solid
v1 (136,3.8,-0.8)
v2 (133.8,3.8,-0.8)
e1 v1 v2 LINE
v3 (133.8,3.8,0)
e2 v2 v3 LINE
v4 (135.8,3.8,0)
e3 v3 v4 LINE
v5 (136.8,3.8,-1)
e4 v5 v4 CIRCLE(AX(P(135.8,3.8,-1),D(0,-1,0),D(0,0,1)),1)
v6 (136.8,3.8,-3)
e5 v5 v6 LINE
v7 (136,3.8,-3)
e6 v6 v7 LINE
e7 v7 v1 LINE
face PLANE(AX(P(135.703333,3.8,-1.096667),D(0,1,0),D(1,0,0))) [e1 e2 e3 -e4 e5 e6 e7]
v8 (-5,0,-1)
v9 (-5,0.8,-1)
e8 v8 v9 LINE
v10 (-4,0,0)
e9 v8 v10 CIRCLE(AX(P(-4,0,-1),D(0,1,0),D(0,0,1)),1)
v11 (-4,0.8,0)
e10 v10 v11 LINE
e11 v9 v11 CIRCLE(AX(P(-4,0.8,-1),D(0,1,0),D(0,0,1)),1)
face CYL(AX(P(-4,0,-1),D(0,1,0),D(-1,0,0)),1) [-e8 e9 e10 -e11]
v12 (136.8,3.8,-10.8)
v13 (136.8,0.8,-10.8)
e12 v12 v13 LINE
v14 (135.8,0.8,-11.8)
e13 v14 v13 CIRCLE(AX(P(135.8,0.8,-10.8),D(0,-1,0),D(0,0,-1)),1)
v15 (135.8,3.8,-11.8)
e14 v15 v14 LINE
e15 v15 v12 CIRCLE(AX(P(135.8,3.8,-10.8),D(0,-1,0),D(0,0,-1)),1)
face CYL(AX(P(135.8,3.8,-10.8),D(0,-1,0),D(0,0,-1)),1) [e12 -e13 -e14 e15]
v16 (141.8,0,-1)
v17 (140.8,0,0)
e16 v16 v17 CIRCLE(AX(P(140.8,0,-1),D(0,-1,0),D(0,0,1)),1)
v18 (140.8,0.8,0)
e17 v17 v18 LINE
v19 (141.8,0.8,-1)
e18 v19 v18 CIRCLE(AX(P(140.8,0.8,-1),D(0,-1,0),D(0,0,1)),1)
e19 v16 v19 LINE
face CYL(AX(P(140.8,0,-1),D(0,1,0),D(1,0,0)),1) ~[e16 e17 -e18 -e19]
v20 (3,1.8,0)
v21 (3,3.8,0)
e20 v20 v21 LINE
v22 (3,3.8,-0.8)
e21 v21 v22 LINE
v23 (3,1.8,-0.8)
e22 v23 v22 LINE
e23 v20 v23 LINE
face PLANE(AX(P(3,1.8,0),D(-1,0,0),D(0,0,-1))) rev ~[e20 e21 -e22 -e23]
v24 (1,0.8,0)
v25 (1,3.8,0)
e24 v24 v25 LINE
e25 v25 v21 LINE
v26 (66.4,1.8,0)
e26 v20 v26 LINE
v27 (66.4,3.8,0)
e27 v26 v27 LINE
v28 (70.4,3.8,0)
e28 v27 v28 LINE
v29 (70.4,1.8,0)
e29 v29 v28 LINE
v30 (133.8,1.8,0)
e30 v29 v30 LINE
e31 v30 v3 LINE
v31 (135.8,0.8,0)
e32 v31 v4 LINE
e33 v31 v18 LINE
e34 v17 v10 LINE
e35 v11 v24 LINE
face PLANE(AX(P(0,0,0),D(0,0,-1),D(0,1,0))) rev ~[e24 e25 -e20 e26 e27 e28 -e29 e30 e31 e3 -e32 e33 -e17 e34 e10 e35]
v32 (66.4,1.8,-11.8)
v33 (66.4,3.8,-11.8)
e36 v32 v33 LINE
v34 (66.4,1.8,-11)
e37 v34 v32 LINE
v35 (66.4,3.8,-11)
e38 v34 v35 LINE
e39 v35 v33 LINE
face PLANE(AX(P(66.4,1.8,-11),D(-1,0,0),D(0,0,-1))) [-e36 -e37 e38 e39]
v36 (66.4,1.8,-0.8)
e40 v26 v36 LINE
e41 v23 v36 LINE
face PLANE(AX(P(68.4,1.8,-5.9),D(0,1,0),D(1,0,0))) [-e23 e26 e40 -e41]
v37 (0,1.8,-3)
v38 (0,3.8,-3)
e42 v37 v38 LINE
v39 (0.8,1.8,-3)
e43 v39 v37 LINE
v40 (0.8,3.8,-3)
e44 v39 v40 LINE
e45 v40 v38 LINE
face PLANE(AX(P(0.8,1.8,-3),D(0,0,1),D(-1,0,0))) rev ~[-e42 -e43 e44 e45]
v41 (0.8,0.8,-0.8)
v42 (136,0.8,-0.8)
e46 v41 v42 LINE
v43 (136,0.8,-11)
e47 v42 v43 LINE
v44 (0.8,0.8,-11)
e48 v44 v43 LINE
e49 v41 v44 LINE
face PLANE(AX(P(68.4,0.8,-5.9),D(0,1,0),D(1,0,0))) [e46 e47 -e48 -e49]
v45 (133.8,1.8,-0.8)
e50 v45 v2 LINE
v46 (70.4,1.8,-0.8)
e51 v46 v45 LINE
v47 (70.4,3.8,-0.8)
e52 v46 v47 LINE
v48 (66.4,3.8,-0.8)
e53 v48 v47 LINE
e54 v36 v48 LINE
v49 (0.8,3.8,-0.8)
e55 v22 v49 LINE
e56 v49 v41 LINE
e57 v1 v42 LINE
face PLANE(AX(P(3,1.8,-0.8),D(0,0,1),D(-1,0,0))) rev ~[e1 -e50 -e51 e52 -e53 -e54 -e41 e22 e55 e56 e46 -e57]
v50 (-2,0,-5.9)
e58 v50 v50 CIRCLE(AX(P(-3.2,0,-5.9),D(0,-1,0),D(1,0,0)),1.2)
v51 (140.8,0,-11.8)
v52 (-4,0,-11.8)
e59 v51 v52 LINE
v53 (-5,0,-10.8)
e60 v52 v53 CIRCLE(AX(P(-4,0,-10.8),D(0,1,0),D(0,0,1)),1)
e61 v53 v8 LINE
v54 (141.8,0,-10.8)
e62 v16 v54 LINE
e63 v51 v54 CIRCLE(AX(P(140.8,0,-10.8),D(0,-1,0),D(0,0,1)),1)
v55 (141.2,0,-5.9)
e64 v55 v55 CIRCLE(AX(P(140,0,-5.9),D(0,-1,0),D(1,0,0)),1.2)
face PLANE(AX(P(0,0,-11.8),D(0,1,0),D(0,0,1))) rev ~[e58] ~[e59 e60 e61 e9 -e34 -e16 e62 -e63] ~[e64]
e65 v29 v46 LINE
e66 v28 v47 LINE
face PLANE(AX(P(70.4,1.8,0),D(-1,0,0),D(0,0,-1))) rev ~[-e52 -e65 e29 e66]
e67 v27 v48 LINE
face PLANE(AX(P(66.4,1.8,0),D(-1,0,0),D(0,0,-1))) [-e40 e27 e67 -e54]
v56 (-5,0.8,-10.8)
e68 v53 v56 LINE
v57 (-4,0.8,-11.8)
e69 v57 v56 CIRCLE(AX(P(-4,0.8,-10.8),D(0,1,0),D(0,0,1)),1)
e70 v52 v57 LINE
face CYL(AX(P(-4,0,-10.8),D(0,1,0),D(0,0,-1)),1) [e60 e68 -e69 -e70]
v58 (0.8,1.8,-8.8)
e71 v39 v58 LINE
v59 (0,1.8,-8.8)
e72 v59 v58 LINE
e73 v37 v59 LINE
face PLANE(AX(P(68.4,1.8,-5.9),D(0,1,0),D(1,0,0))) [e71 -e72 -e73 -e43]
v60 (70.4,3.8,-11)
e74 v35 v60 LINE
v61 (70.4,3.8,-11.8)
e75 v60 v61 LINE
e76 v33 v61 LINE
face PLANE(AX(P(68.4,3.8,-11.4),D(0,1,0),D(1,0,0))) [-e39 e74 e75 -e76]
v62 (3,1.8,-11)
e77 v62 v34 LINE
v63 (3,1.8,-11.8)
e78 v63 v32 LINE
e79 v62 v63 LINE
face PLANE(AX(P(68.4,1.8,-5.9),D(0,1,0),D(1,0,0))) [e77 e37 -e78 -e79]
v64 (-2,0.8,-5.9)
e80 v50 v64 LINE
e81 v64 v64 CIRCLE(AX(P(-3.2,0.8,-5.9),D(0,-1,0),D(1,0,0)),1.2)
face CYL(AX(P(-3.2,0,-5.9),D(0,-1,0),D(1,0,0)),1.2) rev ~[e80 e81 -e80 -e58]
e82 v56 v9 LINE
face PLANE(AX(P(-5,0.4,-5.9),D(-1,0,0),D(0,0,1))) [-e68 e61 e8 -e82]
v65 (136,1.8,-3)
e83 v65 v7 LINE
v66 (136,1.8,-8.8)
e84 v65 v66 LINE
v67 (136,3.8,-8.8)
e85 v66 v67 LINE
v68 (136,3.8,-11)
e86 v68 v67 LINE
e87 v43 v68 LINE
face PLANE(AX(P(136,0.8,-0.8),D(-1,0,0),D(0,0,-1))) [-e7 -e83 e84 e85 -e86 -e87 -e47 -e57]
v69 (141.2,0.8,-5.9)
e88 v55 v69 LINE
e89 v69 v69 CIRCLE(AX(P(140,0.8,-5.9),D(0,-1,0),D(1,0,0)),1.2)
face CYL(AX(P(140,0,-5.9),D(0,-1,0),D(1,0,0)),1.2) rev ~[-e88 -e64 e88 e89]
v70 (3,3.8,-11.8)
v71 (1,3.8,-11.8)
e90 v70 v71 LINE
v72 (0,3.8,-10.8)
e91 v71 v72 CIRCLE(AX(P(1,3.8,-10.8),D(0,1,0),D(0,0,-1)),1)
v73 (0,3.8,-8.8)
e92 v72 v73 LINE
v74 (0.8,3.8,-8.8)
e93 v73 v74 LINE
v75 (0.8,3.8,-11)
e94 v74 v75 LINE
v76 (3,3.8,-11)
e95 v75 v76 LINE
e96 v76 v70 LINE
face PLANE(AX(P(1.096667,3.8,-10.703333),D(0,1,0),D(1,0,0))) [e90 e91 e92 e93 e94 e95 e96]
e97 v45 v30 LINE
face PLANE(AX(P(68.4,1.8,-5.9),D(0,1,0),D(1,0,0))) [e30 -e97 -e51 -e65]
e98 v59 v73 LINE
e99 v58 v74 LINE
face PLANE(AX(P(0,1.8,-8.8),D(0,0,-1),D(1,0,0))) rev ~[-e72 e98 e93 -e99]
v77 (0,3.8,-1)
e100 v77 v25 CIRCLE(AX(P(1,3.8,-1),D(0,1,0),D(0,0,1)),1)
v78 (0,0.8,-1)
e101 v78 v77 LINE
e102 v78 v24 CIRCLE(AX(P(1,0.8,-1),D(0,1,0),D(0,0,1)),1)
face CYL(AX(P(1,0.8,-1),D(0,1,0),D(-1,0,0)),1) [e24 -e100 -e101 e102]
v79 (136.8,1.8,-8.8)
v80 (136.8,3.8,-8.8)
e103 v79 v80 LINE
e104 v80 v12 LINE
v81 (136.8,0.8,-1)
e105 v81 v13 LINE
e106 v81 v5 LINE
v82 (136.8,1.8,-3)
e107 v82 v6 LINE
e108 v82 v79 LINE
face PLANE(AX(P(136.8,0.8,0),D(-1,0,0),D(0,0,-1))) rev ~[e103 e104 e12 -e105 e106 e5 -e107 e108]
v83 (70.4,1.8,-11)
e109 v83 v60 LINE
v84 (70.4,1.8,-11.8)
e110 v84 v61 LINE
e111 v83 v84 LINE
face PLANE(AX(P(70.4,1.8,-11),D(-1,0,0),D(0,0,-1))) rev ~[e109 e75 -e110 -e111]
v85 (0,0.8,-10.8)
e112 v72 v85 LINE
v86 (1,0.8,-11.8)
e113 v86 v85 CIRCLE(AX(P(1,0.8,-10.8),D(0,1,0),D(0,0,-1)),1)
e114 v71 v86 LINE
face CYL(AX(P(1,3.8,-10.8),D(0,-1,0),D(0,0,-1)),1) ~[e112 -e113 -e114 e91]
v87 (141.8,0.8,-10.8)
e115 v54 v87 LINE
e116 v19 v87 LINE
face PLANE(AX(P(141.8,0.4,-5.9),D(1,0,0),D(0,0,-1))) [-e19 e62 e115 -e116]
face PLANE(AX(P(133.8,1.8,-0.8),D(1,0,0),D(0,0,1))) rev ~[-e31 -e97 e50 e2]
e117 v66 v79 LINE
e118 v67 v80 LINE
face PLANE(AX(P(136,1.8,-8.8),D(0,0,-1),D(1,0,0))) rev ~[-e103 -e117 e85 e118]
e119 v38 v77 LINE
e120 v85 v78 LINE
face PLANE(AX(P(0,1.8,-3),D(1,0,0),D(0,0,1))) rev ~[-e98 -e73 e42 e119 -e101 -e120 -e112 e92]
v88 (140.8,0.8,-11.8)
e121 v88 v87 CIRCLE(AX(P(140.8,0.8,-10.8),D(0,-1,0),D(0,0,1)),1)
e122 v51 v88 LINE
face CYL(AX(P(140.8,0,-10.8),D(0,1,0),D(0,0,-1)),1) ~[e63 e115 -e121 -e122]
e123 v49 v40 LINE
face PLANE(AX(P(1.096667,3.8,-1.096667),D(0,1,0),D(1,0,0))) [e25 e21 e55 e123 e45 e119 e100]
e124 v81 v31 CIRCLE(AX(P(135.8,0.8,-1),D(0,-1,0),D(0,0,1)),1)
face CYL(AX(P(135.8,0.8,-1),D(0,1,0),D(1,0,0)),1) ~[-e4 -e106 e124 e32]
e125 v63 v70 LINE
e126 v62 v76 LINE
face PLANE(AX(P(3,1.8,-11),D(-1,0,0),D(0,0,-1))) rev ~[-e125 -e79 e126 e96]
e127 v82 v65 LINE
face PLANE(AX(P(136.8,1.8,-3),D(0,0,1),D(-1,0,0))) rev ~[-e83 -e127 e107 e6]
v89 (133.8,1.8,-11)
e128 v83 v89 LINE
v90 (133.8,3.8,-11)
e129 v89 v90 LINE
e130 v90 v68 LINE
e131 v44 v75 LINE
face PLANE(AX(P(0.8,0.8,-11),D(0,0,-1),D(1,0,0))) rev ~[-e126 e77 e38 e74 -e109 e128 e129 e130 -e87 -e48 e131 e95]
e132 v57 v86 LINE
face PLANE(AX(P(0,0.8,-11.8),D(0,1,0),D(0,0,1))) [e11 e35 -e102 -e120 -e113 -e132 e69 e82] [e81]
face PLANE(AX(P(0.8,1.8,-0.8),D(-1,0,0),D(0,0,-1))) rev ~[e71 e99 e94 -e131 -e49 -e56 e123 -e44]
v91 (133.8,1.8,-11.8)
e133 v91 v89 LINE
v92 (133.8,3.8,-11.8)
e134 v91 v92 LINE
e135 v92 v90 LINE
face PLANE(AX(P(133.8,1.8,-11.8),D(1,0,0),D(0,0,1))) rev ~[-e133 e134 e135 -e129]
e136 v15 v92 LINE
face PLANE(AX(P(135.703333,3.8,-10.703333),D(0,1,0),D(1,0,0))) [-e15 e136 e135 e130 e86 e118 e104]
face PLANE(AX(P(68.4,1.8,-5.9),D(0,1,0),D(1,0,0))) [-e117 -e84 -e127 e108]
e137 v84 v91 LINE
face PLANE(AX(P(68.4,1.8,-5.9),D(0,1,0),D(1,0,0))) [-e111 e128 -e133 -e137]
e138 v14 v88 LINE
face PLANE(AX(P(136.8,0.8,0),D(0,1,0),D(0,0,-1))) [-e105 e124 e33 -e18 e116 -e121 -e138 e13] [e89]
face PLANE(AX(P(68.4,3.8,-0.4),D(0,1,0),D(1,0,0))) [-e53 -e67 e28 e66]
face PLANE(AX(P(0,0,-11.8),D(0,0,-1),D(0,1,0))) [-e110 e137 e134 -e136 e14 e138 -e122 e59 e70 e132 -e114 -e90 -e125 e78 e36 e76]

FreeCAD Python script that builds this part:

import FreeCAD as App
import Part
import Sketcher


def edges_at(feature, points):
    """Names of the edges that pass closest to the given points."""
    edges = feature.Shape.Edges
    near = lambda p: min(range(len(edges)), key=lambda i: edges[i].distToShape(Part.Vertex(*p))[0])
    return sorted({f"Edge{near(p) + 1}" for p in points})


def add_polygon(sketch, points):
    """Adds a closed chain of lines whose ends are joined by coincident constraints."""
    first, n = sketch.GeometryCount, len(points)
    for a, b in zip(points, points[1:] + points[:1]):
        sketch.addGeometry(Part.LineSegment(App.Vector(*a, 0), App.Vector(*b, 0)), False)
    for i in range(n):
        sketch.addConstraint(Sketcher.Constraint("Coincident", first + i, 2, first + (i + 1) % n, 1))

doc = App.newDocument("Part")
body = doc.addObject("PartDesign::Body", "Body")

# Sketch on XZ plane
sketch1 = doc.addObject("Sketcher::SketchObject", "Sketch")
body.addObject(sketch1)
sketch1.AttachmentSupport = (doc.XZ_Plane, [""])
sketch1.MapMode = "FlatFace"
add_polygon(sketch1, [(0, -12), (0, 0), (137, 0), (137, -12)])  # lines 0-3
sketch1.addConstraint(Sketcher.Constraint("Vertical", 0))
sketch1.addConstraint(Sketcher.Constraint("Horizontal", 1))
sketch1.addConstraint(Sketcher.Constraint("Vertical", 2))
sketch1.addConstraint(Sketcher.Constraint("Horizontal", 3))
sketch1.addConstraint(Sketcher.Constraint("Coincident", 0, 2, -1, 1))
sketch1.addConstraint(Sketcher.Constraint("DistanceX", 1, 1, 1, 2, 136.8))
sketch1.addConstraint(Sketcher.Constraint("DistanceY", 0, 1, 0, 2, 11.8))
pad1 = doc.addObject("PartDesign::Pad", "Pad")
body.addObject(pad1)
pad1.Profile = sketch1
pad1.Length = 0.8
pad1.Reversed = True

# Sketch on XZ plane
sketch2 = doc.addObject("Sketcher::SketchObject", "Sketch001")
body.addObject(sketch2)
sketch2.AttachmentSupport = (doc.XZ_Plane, [""])
sketch2.MapMode = "FlatFace"
sketch2.AttachmentOffset = App.Placement(App.Vector(0, 0, -0.8), App.Rotation())
add_polygon(sketch2, [(0, -12), (0, 0), (137, 0), (137, -12)])  # lines 0-3
add_polygon(sketch2, [(136, -1), (1, -1), (1, -11), (136, -11)])  # lines 4-7
sketch2.addConstraint(Sketcher.Constraint("Vertical", 0))
sketch2.addConstraint(Sketcher.Constraint("Horizontal", 1))
sketch2.addConstraint(Sketcher.Constraint("Vertical", 2))
sketch2.addConstraint(Sketcher.Constraint("Horizontal", 3))
sketch2.addConstraint(Sketcher.Constraint("Horizontal", 4))
sketch2.addConstraint(Sketcher.Constraint("Vertical", 5))
sketch2.addConstraint(Sketcher.Constraint("Horizontal", 6))
sketch2.addConstraint(Sketcher.Constraint("Vertical", 7))
sketch2.addConstraint(Sketcher.Constraint("Coincident", 0, 2, -1, 1))
sketch2.addConstraint(Sketcher.Constraint("DistanceX", 1, 1, 1, 2, 136.8))
sketch2.addConstraint(Sketcher.Constraint("DistanceX", 4, 2, 4, 1, 135.2))
sketch2.addConstraint(Sketcher.Constraint("DistanceY", 0, 1, 0, 2, 11.8))
sketch2.addConstraint(Sketcher.Constraint("DistanceY", 5, 2, 5, 1, 10.2))
sketch2.addConstraint(Sketcher.Constraint("DistanceY", 5, 2, -1, 1, 11.0))
sketch2.addConstraint(Sketcher.Constraint("DistanceX", -1, 1, 6, 2, 136.0))
pad2 = doc.addObject("PartDesign::Pad", "Pad001")
body.addObject(pad2)
pad2.Profile = sketch2
pad2.Length = 1
pad2.Reversed = True

# Sketch on XZ plane
sketch3 = doc.addObject("Sketcher::SketchObject", "Sketch002")
body.addObject(sketch3)
sketch3.AttachmentSupport = (doc.XZ_Plane, [""])
sketch3.MapMode = "FlatFace"
sketch3.AttachmentOffset = App.Placement(App.Vector(0, 0, -1.8), App.Rotation())
add_polygon(sketch3, [(0.8, -3), (0, -3), (0, 0), (3, 0), (3, -0.8), (0.8, -0.8)])  # lines 0-5
add_polygon(sketch3, [(3, -11.8), (0, -11.8), (0, -8.8), (0.8, -8.8), (0.8, -11), (3, -11)])  # lines 6-11
add_polygon(sketch3, [(133.8, -11), (136, -11), (136, -8.8), (136.8, -8.8), (136.8, -11.8), (133.8, -11.8)])  # lines 12-17
add_polygon(sketch3, [(66.4, -11.8), (66.4, -11), (70.4, -11), (70.4, -11.8)])  # lines 18-21
add_polygon(sketch3, [(66.4, -0.8), (66.4, 0), (70.4, 0), (70.4, -0.8)])  # lines 22-25
add_polygon(sketch3, [(133.8, 0), (136.8, 0), (136.8, -3), (136, -3), (136, -0.8), (133.8, -0.8)])  # lines 26-31
sketch3.addConstraint(Sketcher.Constraint("Horizontal", 0))
sketch3.addConstraint(Sketcher.Constraint("Vertical", 1))
sketch3.addConstraint(Sketcher.Constraint("Horizontal", 2))
sketch3.addConstraint(Sketcher.Constraint("Vertical", 3))
sketch3.addConstraint(Sketcher.Constraint("Horizontal", 4))
sketch3.addConstraint(Sketcher.Constraint("Vertical", 5))
sketch3.addConstraint(Sketcher.Constraint("Horizontal", 6))
sketch3.addConstraint(Sketcher.Constraint("Vertical", 7))
sketch3.addConstraint(Sketcher.Constraint("Horizontal", 8))
sketch3.addConstraint(Sketcher.Constraint("Vertical", 9))
sketch3.addConstraint(Sketcher.Constraint("Horizontal", 10))
sketch3.addConstraint(Sketcher.Constraint("Vertical", 11))
sketch3.addConstraint(Sketcher.Constraint("Horizontal", 12))
sketch3.addConstraint(Sketcher.Constraint("Vertical", 13))
sketch3.addConstraint(Sketcher.Constraint("Horizontal", 14))
sketch3.addConstraint(Sketcher.Constraint("Vertical", 15))
sketch3.addConstraint(Sketcher.Constraint("Horizontal", 16))
sketch3.addConstraint(Sketcher.Constraint("Vertical", 17))
sketch3.addConstraint(Sketcher.Constraint("Vertical", 18))
sketch3.addConstraint(Sketcher.Constraint("Horizontal", 19))
sketch3.addConstraint(Sketcher.Constraint("Vertical", 20))
sketch3.addConstraint(Sketcher.Constraint("Horizontal", 21))
sketch3.addConstraint(Sketcher.Constraint("Vertical", 22))
sketch3.addConstraint(Sketcher.Constraint("Horizontal", 23))
sketch3.addConstraint(Sketcher.Constraint("Vertical", 24))
sketch3.addConstraint(Sketcher.Constraint("Horizontal", 25))
sketch3.addConstraint(Sketcher.Constraint("Horizontal", 26))
sketch3.addConstraint(Sketcher.Constraint("Vertical", 27))
sketch3.addConstraint(Sketcher.Constraint("Horizontal", 28))
sketch3.addConstraint(Sketcher.Constraint("Vertical", 29))
sketch3.addConstraint(Sketcher.Constraint("Horizontal", 30))
sketch3.addConstraint(Sketcher.Constraint("Vertical", 31))
sketch3.addConstraint(Sketcher.Constraint("Coincident", 1, 2, -1, 1))
sketch3.addConstraint(Sketcher.Constraint("PointOnObject", 6, 2, -2))
sketch3.addConstraint(Sketcher.Constraint("PointOnObject", 22, 2, -1))
sketch3.addConstraint(Sketcher.Constraint("PointOnObject", 26, 2, -1))
sketch3.addConstraint(Sketcher.Constraint("Horizontal", 10, 2, 12, 2))
sketch3.addConstraint(Sketcher.Constraint("Horizontal", 8, 2, 13, 2))
sketch3.addConstraint(Sketcher.Constraint("Horizontal", 11, 2, 15, 2))
sketch3.addConstraint(Sketcher.Constraint("Horizontal", 17, 2, 18, 2))
sketch3.addConstraint(Sketcher.Constraint("Horizontal", 16, 2, 20, 2))
sketch3.addConstraint(Sketcher.Constraint("Horizontal", 4, 2, 24, 2))
sketch3.addConstraint(Sketcher.Constraint("Horizontal", 5, 2, 27, 2))
sketch3.addConstraint(Sketcher.Constraint("Horizontal", 25, 2, 29, 2))
sketch3.addConstraint(Sketcher.Constraint("Vertical", 5, 2, 8, 2))
sketch3.addConstraint(Sketcher.Constraint("Vertical", 3, 2, 10, 2))
sketch3.addConstraint(Sketcher.Constraint("Vertical", 21, 2, 22, 2))
sketch3.addConstraint(Sketcher.Constraint("Vertical", 20, 2, 23, 2))
sketch3.addConstraint(Sketcher.Constraint("Vertical", 15, 2, 26, 2))
sketch3.addConstraint(Sketcher.Constraint("Vertical", 13, 2, 28, 2))
sketch3.addConstraint(Sketcher.Constraint("Vertical", 17, 2, 30, 2))
sketch3.addConstraint(Sketcher.Constraint("Equal", 10, 12))
sketch3.addConstraint(Sketcher.Constraint("Equal", 8, 14))
sketch3.addConstraint(Sketcher.Constraint("Equal", 26, 1))
sketch3.addConstraint(Sketcher.Constraint("Equal", 28, 3))
sketch3.addConstraint(Sketcher.Constraint("Equal", 1, 7))
sketch3.addConstraint(Sketcher.Constraint("Equal", 5, 9))
sketch3.addConstraint(Sketcher.Constraint("DistanceX", 2, 1, 2, 2, 3.0))
sketch3.addConstraint(Sketcher.Constraint("DistanceX", 19, 1, 19, 2, 4.0))
sketch3.addConstraint(Sketcher.Constraint("DistanceX", 0, 2, 0, 1, 0.8))
sketch3.addConstraint(Sketcher.Constraint("DistanceY", 9, 2, -1, 1, 11.0))
sketch3.addConstraint(Sketcher.Constraint("DistanceX", -1, 1, 12, 2, 136.0))
sketch3.addConstraint(Sketcher.Constraint("DistanceX", -1, 1, 18, 2, 66.4))
pad3 = doc.addObject("PartDesign::Pad", "Pad002")
body.addObject(pad3)
pad3.Profile = sketch3
pad3.Length = 2
pad3.Reversed = True

# Sketch on YZ plane
sketch4 = doc.addObject("Sketcher::SketchObject", "Sketch003")
body.addObject(sketch4)
sketch4.AttachmentSupport = (doc.YZ_Plane, [""])
sketch4.MapMode = "FlatFace"
sketch4.AttachmentOffset = App.Placement(App.Vector(0, 0, 136.8), App.Rotation())
add_polygon(sketch4, [(0.8, 0), (0, 0), (0, -11.8), (0.8, -11.8)])  # lines 0-3
sketch4.addConstraint(Sketcher.Constraint("Horizontal", 0))
sketch4.addConstraint(Sketcher.Constraint("Vertical", 1))
sketch4.addConstraint(Sketcher.Constraint("Horizontal", 2))
sketch4.addConstraint(Sketcher.Constraint("Vertical", 3))
sketch4.addConstraint(Sketcher.Constraint("Coincident", 0, 2, -1, 1))
sketch4.addConstraint(Sketcher.Constraint("DistanceX", 0, 2, 0, 1, 0.8))
sketch4.addConstraint(Sketcher.Constraint("DistanceY", 1, 2, 1, 1, 11.8))
pad4 = doc.addObject("PartDesign::Pad", "Pad003")
body.addObject(pad4)
pad4.Profile = sketch4
pad4.Length = 5

# Sketch on YZ plane
sketch5 = doc.addObject("Sketcher::SketchObject", "Sketch004")
body.addObject(sketch5)
sketch5.AttachmentSupport = (doc.YZ_Plane, [""])
sketch5.MapMode = "FlatFace"
add_polygon(sketch5, [(0.8, -11.8), (0, -11.8), (0, 0), (0.8, 0)])  # lines 0-3
sketch5.addConstraint(Sketcher.Constraint("Horizontal", 0))
sketch5.addConstraint(Sketcher.Constraint("Vertical", 1))
sketch5.addConstraint(Sketcher.Constraint("Horizontal", 2))
sketch5.addConstraint(Sketcher.Constraint("Vertical", 3))
sketch5.addConstraint(Sketcher.Constraint("Coincident", 1, 2, -1, 1))
sketch5.addConstraint(Sketcher.Constraint("DistanceX", 0, 2, 0, 1, 0.8))
sketch5.addConstraint(Sketcher.Constraint("DistanceY", 1, 1, 1, 2, 11.8))
pad5 = doc.addObject("PartDesign::Pad", "Pad004")
body.addObject(pad5)
pad5.Profile = sketch5
pad5.Length = 5
pad5.Reversed = True

# Sketch on XZ plane
sketch6 = doc.addObject("Sketcher::SketchObject", "Sketch005")
body.addObject(sketch6)
sketch6.AttachmentSupport = (doc.XZ_Plane, [""])
sketch6.MapMode = "FlatFace"
sketch6.addGeometry(Part.Circle(App.Vector(140, -5.9, 0), App.Vector(0, 0, 1), 1.2), False)
sketch6.addGeometry(Part.Circle(App.Vector(-3.2, -5.9, 0), App.Vector(0, 0, 1), 1.2), False)
sketch6.addConstraint(Sketcher.Constraint("Equal", 0, 1))
sketch6.addConstraint(Sketcher.Constraint("Horizontal", 0, 3, 1, 3))
sketch6.addConstraint(Sketcher.Constraint("Diameter", 0, 2.4))
sketch6.addConstraint(Sketcher.Constraint("DistanceX", -1, 1, 0, 3, 140.0))
sketch6.addConstraint(Sketcher.Constraint("DistanceY", 0, 3, -1, 1, 5.9))
sketch6.addConstraint(Sketcher.Constraint("DistanceX", 1, 3, -1, 1, 3.2))
pocket1 = doc.addObject("PartDesign::Pocket", "Pocket")
body.addObject(pocket1)
pocket1.Profile = sketch6
pocket1.Length = 4
doc.recompute()

fillet = doc.addObject("PartDesign::Fillet", "Fillet")
body.addObject(fillet)
fillet.Base = (pocket1, edges_at(pocket1, [
    (141.8, 0.4, -11.8),
    (141.8, 0.4, 0),
    (-5, 0.4, -11.8),
    (-5, 0.4, 0),
    (0, 2.3, -11.8),
    (136.8, 2.3, -11.8),
    (136.8, 2.3, 0),
    (0, 2.3, 0),
]))
fillet.Radius = 1

doc.recompute()
